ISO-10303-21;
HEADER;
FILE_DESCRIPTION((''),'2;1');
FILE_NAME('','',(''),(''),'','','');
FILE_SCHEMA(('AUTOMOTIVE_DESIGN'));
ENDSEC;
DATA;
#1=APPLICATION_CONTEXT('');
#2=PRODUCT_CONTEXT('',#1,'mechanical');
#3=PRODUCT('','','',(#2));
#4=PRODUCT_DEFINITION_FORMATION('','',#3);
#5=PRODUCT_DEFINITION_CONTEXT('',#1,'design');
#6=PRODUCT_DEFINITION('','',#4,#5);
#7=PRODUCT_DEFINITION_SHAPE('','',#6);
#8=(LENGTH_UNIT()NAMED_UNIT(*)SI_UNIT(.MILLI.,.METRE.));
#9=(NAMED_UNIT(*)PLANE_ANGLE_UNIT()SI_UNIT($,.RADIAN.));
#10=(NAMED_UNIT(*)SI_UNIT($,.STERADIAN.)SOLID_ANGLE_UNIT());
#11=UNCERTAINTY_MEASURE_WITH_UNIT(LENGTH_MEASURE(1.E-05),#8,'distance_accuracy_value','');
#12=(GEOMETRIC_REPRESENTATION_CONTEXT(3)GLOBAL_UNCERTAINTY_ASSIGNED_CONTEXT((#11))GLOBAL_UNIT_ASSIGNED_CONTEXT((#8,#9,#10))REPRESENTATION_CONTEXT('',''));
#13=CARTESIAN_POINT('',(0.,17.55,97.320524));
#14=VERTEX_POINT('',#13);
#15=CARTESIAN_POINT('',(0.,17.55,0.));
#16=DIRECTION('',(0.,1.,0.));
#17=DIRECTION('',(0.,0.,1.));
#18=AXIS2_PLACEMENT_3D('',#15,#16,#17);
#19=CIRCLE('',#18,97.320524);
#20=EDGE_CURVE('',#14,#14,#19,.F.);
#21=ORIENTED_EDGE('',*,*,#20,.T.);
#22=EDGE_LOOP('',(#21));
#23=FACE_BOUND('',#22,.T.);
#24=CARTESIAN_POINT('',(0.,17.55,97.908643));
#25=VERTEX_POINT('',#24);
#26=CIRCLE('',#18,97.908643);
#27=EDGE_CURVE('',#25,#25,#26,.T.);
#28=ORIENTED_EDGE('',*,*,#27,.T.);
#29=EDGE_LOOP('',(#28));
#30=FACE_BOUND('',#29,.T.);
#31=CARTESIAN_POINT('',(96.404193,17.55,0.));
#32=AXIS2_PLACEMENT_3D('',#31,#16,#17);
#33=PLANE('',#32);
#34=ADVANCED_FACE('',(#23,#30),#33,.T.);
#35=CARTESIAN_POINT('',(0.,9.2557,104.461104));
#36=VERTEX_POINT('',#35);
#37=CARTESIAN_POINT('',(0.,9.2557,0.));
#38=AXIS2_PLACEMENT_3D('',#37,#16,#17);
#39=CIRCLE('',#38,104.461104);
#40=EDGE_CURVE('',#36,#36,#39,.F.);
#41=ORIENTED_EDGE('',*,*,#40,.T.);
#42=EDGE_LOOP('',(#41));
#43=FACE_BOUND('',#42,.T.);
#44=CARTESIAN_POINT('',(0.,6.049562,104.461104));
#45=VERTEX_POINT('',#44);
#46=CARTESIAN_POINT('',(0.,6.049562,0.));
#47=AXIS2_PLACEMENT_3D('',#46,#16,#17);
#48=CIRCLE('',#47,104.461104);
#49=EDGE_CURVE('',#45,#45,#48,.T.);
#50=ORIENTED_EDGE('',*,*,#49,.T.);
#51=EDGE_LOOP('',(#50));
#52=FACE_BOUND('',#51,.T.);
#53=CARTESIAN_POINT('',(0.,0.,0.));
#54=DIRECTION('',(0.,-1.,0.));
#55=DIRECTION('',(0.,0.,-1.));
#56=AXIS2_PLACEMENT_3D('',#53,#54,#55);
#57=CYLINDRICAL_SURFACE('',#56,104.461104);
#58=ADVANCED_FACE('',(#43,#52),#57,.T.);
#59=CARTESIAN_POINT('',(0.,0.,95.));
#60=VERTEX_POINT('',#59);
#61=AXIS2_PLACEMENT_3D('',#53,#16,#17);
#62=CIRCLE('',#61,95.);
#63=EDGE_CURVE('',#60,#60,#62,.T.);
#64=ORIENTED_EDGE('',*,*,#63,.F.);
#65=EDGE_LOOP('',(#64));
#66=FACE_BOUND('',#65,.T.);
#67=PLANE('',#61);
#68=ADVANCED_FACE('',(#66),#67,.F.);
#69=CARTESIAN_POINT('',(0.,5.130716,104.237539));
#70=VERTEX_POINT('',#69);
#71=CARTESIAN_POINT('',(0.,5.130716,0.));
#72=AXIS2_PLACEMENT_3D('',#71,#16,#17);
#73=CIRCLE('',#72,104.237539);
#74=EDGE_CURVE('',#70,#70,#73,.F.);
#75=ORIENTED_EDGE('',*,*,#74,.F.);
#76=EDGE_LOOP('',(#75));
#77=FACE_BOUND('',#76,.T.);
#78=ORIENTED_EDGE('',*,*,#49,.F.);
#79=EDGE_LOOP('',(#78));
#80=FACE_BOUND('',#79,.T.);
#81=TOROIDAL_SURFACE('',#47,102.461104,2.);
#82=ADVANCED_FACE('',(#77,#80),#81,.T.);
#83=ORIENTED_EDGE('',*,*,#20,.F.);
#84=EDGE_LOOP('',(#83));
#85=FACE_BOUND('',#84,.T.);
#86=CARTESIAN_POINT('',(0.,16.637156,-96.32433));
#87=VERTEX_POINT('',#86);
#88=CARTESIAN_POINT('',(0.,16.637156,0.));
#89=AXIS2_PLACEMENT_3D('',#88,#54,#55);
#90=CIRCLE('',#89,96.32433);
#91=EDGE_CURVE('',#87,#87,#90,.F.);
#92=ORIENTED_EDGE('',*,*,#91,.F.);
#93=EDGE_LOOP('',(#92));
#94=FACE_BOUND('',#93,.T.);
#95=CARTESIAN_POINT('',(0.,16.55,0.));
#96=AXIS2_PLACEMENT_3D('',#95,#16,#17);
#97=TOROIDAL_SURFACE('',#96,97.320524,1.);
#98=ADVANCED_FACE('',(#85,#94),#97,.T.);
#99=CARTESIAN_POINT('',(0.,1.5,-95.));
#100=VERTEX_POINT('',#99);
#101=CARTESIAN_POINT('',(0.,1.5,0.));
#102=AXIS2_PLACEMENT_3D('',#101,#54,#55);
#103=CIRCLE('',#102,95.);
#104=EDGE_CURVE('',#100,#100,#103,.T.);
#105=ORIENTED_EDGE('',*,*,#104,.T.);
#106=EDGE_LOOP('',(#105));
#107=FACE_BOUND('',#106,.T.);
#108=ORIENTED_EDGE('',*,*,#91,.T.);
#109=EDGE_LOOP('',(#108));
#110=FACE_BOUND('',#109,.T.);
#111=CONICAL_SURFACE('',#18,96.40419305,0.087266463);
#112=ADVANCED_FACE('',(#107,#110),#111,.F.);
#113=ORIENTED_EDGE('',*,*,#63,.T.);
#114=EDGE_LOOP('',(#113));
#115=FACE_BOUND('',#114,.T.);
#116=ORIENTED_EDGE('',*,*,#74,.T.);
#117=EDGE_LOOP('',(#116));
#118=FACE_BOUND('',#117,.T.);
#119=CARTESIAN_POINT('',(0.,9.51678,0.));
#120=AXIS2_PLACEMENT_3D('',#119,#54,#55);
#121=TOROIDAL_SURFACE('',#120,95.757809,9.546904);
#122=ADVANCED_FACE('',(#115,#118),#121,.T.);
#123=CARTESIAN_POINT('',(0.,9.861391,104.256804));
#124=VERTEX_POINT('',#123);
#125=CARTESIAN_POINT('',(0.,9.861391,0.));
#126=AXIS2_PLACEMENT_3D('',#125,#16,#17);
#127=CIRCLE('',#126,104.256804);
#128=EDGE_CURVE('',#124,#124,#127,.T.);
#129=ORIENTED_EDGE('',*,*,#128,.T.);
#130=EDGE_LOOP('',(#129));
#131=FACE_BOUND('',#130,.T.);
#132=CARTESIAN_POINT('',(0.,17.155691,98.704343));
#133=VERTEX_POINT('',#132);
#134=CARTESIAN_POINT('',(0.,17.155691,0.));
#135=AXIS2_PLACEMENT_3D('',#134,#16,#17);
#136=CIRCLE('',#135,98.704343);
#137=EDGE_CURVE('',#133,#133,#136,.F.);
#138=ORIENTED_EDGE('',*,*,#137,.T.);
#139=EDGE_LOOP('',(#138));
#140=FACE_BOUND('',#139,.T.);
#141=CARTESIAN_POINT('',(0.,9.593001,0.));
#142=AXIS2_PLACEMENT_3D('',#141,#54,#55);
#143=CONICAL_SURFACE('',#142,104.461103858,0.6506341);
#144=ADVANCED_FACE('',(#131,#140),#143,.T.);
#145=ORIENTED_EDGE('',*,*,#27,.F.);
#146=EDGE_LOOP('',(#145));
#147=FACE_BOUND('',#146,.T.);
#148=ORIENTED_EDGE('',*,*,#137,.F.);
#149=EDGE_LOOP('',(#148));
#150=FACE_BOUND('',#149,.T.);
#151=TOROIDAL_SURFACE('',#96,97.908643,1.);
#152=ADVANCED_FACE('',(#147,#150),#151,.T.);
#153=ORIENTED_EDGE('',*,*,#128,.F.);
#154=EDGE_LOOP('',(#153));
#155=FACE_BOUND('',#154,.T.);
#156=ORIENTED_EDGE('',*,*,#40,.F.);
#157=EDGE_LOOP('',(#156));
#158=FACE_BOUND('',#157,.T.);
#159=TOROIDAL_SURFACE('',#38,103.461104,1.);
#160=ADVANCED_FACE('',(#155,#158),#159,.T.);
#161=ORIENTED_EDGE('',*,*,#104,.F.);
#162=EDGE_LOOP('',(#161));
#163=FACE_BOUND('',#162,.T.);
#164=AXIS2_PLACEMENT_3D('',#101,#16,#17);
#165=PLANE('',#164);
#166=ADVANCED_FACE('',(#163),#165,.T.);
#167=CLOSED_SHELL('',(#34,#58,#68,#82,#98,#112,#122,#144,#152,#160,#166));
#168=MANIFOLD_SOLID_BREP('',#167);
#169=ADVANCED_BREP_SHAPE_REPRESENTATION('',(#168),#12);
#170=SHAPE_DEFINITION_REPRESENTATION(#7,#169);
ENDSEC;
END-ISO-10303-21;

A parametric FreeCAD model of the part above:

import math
import FreeCAD as App
import Part
import Sketcher
Q = App.Units.Quantity


def edges_at(feature, points):
    """Names of the edges that pass closest to the given points."""
    edges = feature.Shape.Edges
    near = lambda p: min(range(len(edges)), key=lambda i: edges[i].distToShape(Part.Vertex(*p))[0])
    return sorted({f"Edge{near(p) + 1}" for p in points})

doc = App.newDocument("Part")
params = doc.addObject("Spreadsheet::Sheet", "Params")
for row, (alias, value) in enumerate([
    ("sketch1_diameter", "190 mm"),
    ("pad1_length", "1.5 mm"),
    ("sketch2_width", "2 mm"),
    ("sketch2_height", "4 mm"),
    ("sketch2_length", "10 mm"),
    ("sketch2_height2", "1.5 mm"),
    ("revolution_angle", "360 deg"),
    ("fillet_radius", "1 mm"),
    ("fillet2_radius", "1 mm"),
    ("fillet3_radius", "2 mm"),
], start=1):
    params.set(f"A{row}", alias)
    params.set(f"B{row}", "=" + value)
    params.setAlias(f"B{row}", alias)

body = doc.addObject("PartDesign::Body", "Body")

# Sketch on XZ plane
sketch1 = body.newObject("Sketcher::SketchObject", "Sketch")
sketch1.AttachmentSupport = (doc.getObject("XZ_Plane"), [""])
sketch1.MapMode = "FlatFace"
sketch1.addGeometry(Part.Circle(App.Vector(0, 0, 0), App.Vector(0, 0, 1), 95), False)
sketch1.addConstraint(Sketcher.Constraint("Coincident", 0, 3, -1, 1))
sketch1.addConstraint(Sketcher.Constraint("Diameter", 0, Q("190 mm")))
sketch1.setExpression("Constraints[1]", "Params.sketch1_diameter")
pad1 = body.newObject("PartDesign::Pad", "Pad")
pad1.Profile = sketch1
pad1.setExpression("Length", "Params.pad1_length")
pad1.Reversed = True

# Sketch on XY plane
sketch2 = body.newObject("Sketcher::SketchObject", "Sketch001")
sketch2.AttachmentSupport = (doc.getObject("XY_Plane"), [""])
sketch2.MapMode = "FlatFace"
sketch2.addGeometry(Part.LineSegment(App.Vector(96.4, 17.6, 0), App.Vector(95, 1.5, 0)), False)
sketch2.addGeometry(Part.LineSegment(App.Vector(95, 1.5, 0), App.Vector(95, 0, 0)), False)
sketch2.addGeometry(Part.ArcOfCircle(Part.Circle(App.Vector(95.8, 9.5, 0), App.Vector(0, 0, 1), 9.5), math.radians(-95), math.radians(-24)), False)
sketch2.addGeometry(Part.LineSegment(App.Vector(104.5, 5.6, 0), App.Vector(104.5, 9.6, 0)), False)
sketch2.addGeometry(Part.LineSegment(App.Vector(104.5, 9.6, 0), App.Vector(98.4, 17.6, 0)), False)
sketch2.addGeometry(Part.LineSegment(App.Vector(98.4, 17.6, 0), App.Vector(96.4, 17.6, 0)), False)
sketch2.addConstraint(Sketcher.Constraint("Coincident", 0, 2, 1, 1))
sketch2.addConstraint(Sketcher.Constraint("Coincident", 1, 2, 2, 1))
sketch2.addConstraint(Sketcher.Constraint("Coincident", 2, 2, 3, 1))
sketch2.addConstraint(Sketcher.Constraint("Coincident", 3, 2, 4, 1))
sketch2.addConstraint(Sketcher.Constraint("Coincident", 4, 2, 5, 1))
sketch2.addConstraint(Sketcher.Constraint("Coincident", 5, 2, 0, 1))
sketch2.addConstraint(Sketcher.Constraint("Vertical", 1))
sketch2.addConstraint(Sketcher.Constraint("Vertical", 3))
sketch2.addConstraint(Sketcher.Constraint("Horizontal", 5))
sketch2.addConstraint(Sketcher.Constraint("PointOnObject", 1, 2, -1))
sketch2.addConstraint(Sketcher.Constraint("DistanceX", 5, 2, 5, 1, Q("2 mm")))
sketch2.addConstraint(Sketcher.Constraint("DistanceY", 3, 1, 3, 2, Q("4 mm")))
sketch2.addConstraint(Sketcher.Constraint("Angle", 0, Q("-95 deg")))
sketch2.addConstraint(Sketcher.Constraint("Distance", 4, Q("10 mm")))
sketch2.addConstraint(Sketcher.Constraint("DistanceY", 1, 2, 1, 1, Q("1.5 mm")))
sketch2.addConstraint(Sketcher.Constraint("DistanceX", -1, 1, 0, 2, Q("95 mm")))
sketch2.addConstraint(Sketcher.Constraint("DistanceY", -1, 1, 4, 2, Q("17.55 mm")))
sketch2.addConstraint(Sketcher.Constraint("DistanceY", -1, 1, 2, 2, Q("5.593001 mm")))
sketch2.addConstraint(Sketcher.Constraint("Radius", 2, Q("9.546904 mm")))
sketch2.setExpression("Constraints[10]", "Params.sketch2_width")
sketch2.setExpression("Constraints[11]", "Params.sketch2_height")
sketch2.setExpression("Constraints[13]", "Params.sketch2_length")
sketch2.setExpression("Constraints[14]", "Params.sketch2_height2")
revolution = body.newObject("PartDesign::Revolution", "Revolution")
revolution.Profile = sketch2
revolution.ReferenceAxis = (sketch2, ["V_Axis"])
revolution.setExpression("Angle", "Params.revolution_angle")
doc.recompute()

fillet = body.newObject("PartDesign::Fillet", "Fillet")
fillet.Base = (revolution, edges_at(revolution, [(0, 17.55, 98.404), (0, 17.55, 96.404)]))
fillet.setExpression("Radius", "Params.fillet_radius")
doc.recompute()

fillet2 = body.newObject("PartDesign::Fillet", "Fillet001")
fillet2.Base = (fillet, edges_at(fillet, [(0, 9.593, 104.461)]))
fillet2.setExpression("Radius", "Params.fillet2_radius")
doc.recompute()

fillet3 = body.newObject("PartDesign::Fillet", "Fillet002")
fillet3.Base = (fillet2, edges_at(fillet2, [(0, 5.593, 104.461)]))
fillet3.setExpression("Radius", "Params.fillet3_radius")

doc.recompute()
